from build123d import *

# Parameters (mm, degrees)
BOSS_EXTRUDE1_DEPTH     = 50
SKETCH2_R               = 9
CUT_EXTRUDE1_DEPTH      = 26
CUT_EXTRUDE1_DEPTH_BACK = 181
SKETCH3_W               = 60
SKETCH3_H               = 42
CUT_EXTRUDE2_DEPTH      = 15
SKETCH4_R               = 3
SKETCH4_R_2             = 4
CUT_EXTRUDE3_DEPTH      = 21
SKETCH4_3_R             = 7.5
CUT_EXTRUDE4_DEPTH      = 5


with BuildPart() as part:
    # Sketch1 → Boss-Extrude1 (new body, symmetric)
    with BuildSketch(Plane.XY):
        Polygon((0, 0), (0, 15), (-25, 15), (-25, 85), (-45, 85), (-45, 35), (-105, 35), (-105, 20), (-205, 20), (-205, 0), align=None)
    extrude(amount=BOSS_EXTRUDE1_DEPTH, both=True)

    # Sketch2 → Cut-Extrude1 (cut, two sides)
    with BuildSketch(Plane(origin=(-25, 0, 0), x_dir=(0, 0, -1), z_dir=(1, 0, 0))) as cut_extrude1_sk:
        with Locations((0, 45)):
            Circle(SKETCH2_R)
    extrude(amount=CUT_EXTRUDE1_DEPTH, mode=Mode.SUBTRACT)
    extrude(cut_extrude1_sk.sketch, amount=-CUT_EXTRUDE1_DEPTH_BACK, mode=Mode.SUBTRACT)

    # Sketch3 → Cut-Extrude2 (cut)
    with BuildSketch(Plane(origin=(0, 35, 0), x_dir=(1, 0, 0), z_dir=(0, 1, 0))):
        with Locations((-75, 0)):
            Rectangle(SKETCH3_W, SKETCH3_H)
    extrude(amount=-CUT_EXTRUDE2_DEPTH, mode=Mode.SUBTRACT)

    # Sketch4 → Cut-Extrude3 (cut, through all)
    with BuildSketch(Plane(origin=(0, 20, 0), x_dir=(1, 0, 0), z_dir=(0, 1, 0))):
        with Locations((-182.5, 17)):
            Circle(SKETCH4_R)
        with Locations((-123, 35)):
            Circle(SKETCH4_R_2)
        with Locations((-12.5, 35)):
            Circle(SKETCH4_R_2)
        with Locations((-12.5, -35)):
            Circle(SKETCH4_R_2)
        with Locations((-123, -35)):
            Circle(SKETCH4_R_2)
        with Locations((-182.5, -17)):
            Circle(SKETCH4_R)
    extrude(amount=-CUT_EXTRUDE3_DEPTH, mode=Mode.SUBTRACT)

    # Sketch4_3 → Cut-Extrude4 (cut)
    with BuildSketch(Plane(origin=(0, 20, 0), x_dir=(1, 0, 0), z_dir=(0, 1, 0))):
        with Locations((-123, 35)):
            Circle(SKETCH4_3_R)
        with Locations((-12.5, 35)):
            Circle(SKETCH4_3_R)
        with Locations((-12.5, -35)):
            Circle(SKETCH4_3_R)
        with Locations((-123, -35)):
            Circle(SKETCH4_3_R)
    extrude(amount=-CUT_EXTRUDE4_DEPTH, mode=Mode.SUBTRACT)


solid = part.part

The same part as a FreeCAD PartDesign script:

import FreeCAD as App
import Part
import Sketcher

V = App.Vector


def add_polygon(sketch, points):
    """Adds a closed chain of lines whose ends are joined by coincident constraints."""
    first, n = sketch.GeometryCount, len(points)
    for a, b in zip(points, points[1:] + points[:1]):
        sketch.addGeometry(Part.LineSegment(App.Vector(*a, 0), App.Vector(*b, 0)), False)
    for i in range(n):
        sketch.addConstraint(Sketcher.Constraint("Coincident", first + i, 2, first + (i + 1) % n, 1))

doc = App.newDocument("Part")
body = doc.addObject("PartDesign::Body", "Body")

# Sketch on XY plane
sketch1 = body.newObject("Sketcher::SketchObject", "Sketch")
sketch1.AttachmentSupport = (doc.getObject("XY_Plane"), [""])
sketch1.MapMode = "FlatFace"
add_polygon(sketch1, [(0, 0), (0, 15), (-25, 15), (-25, 85), (-45, 85), (-45, 35), (-105, 35), (-105, 20), (-205, 20), (-205, 0)])  # lines 0-9
sketch1.addConstraint([
    Sketcher.Constraint("Vertical", 0),
    Sketcher.Constraint("Horizontal", 1),
    Sketcher.Constraint("Vertical", 2),
    Sketcher.Constraint("Horizontal", 3),
    Sketcher.Constraint("Vertical", 4),
    Sketcher.Constraint("Horizontal", 5),
    Sketcher.Constraint("Vertical", 6),
    Sketcher.Constraint("Horizontal", 7),
    Sketcher.Constraint("Vertical", 8),
    Sketcher.Constraint("Horizontal", 9),
    Sketcher.Constraint("Coincident", 9, 2, -1, 1),
    Sketcher.Constraint("Equal", 0, 6),
    Sketcher.Constraint("Equal", 3, 8),
    Sketcher.Constraint("DistanceX", 1, 2, 1, 1, 25.0),
    Sketcher.Constraint("DistanceX", 3, 2, 3, 1, 20.0),
    Sketcher.Constraint("DistanceX", 5, 2, 5, 1, 60.0),
    Sketcher.Constraint("DistanceX", 7, 2, 7, 1, 100.0),
    Sketcher.Constraint("DistanceY", 0, 1, 0, 2, 15.0),
    Sketcher.Constraint("DistanceY", 2, 1, 2, 2, 70.0),
])
pad1 = body.newObject("PartDesign::Pad", "Pad")
pad1.Profile = sketch1
pad1.Length = 100
pad1.Midplane = True

# Sketch on YZ plane
sketch2 = body.newObject("Sketcher::SketchObject", "Sketch001")
sketch2.AttachmentSupport = (doc.getObject("YZ_Plane"), [""])
sketch2.MapMode = "FlatFace"
sketch2.AttachmentOffset = App.Placement(V(0, 0, -25), App.Rotation())
sketch2.addGeometry(Part.Circle(V(45, 0, 0), V(0, 0, 1), 9), False)
sketch2.addConstraint([
    Sketcher.Constraint("PointOnObject", 0, 3, -1),
    Sketcher.Constraint("Diameter", 0, 18.0),
    Sketcher.Constraint("DistanceX", -1, 1, 0, 3, 45.0),
])
pocket1 = body.newObject("PartDesign::Pocket", "Pocket")
pocket1.Profile = sketch2
pocket1.Type = "ThroughAll"
pocket1.Midplane = True

# Sketch on XZ plane
sketch3 = body.newObject("Sketcher::SketchObject", "Sketch002")
sketch3.AttachmentSupport = (doc.getObject("XZ_Plane"), [""])
sketch3.MapMode = "FlatFace"
sketch3.AttachmentOffset = App.Placement(V(0, 0, -35), App.Rotation())
add_polygon(sketch3, [(-105, -21), (-105, 21), (-45, 21), (-45, -21)])  # lines 0-3
sketch3.addConstraint([
    Sketcher.Constraint("Vertical", 0),
    Sketcher.Constraint("Horizontal", 1),
    Sketcher.Constraint("Vertical", 2),
    Sketcher.Constraint("Horizontal", 3),
    Sketcher.Constraint("DistanceX", 1, 1, 1, 2, 60.0),
    Sketcher.Constraint("DistanceY", 0, 1, 0, 2, 42.0),
    Sketcher.Constraint("DistanceX", 0, 2, -1, 1, 105.0),
    Sketcher.Constraint("DistanceY", -1, 1, 0, 2, 21.0),
])
pocket2 = body.newObject("PartDesign::Pocket", "Pocket001")
pocket2.Profile = sketch3
pocket2.Length = 15
pocket2.Reversed = True

# Sketch on XZ plane
sketch4 = body.newObject("Sketcher::SketchObject", "Sketch003")
sketch4.AttachmentSupport = (doc.getObject("XZ_Plane"), [""])
sketch4.MapMode = "FlatFace"
sketch4.AttachmentOffset = App.Placement(V(0, 0, -20), App.Rotation())
sketch4.addGeometry([
    Part.Circle(V(-182.5, -17, 0), V(0, 0, 1), 3),  # 0
    Part.Circle(V(-123, -35, 0), V(0, 0, 1), 4),  # 1
    Part.Circle(V(-12.5, -35, 0), V(0, 0, 1), 4),  # 2
    Part.Circle(V(-12.5, 35, 0), V(0, 0, 1), 4),  # 3
    Part.Circle(V(-123, 35, 0), V(0, 0, 1), 4),  # 4
    Part.Circle(V(-182.5, 17, 0), V(0, 0, 1), 3),  # 5
], False)
sketch4.addConstraint([
    Sketcher.Constraint("Equal", 1, 2),
    Sketcher.Constraint("Equal", 2, 3),
    Sketcher.Constraint("Equal", 3, 4),
    Sketcher.Constraint("Equal", 0, 5),
    Sketcher.Constraint("Symmetric", 2, 3, 3, 3, -1),
    Sketcher.Constraint("Symmetric", 1, 3, 4, 3, -1),
    Sketcher.Constraint("Symmetric", 0, 3, 5, 3, -1),
    Sketcher.Constraint("Horizontal", 1, 3, 2, 3),
    Sketcher.Constraint("Diameter", 0, 6.0),
    Sketcher.Constraint("Diameter", 1, 8.0),
    Sketcher.Constraint("DistanceY", 0, 3, -1, 1, 17.0),
    Sketcher.Constraint("DistanceX", 1, 3, -1, 1, 123.0),
    Sketcher.Constraint("DistanceY", 1, 3, -1, 1, 35.0),
    Sketcher.Constraint("DistanceX", 0, 3, 2, 3, 170.0),
    Sketcher.Constraint("DistanceX", 0, 3, -1, 1, 182.5),
])
pocket3 = body.newObject("PartDesign::Pocket", "Pocket002")
pocket3.Profile = sketch4
pocket3.Type = "ThroughAll"
pocket3.Reversed = True

# Sketch on XZ plane
sketch5 = body.newObject("Sketcher::SketchObject", "Sketch004")
sketch5.AttachmentSupport = (doc.getObject("XZ_Plane"), [""])
sketch5.MapMode = "FlatFace"
sketch5.AttachmentOffset = App.Placement(V(0, 0, -20), App.Rotation())
sketch5.addGeometry([
    Part.Circle(V(-123, -35, 0), V(0, 0, 1), 8),
    Part.Circle(V(-12, -35, 0), V(0, 0, 1), 8),
    Part.Circle(V(-12, 35, 0), V(0, 0, 1), 8),
    Part.Circle(V(-123, 35, 0), V(0, 0, 1), 8),
], False)
sketch5.addConstraint([
    Sketcher.Constraint("Equal", 0, 1),
    Sketcher.Constraint("Equal", 1, 2),
    Sketcher.Constraint("Equal", 2, 3),
    Sketcher.Constraint("Symmetric", 1, 3, 2, 3, -1),
    Sketcher.Constraint("Symmetric", 0, 3, 3, 3, -1),
    Sketcher.Constraint("Horizontal", 0, 3, 1, 3),
    Sketcher.Constraint("Diameter", 0, 15.0),
    Sketcher.Constraint("DistanceX", 0, 3, -1, 1, 123.0),
    Sketcher.Constraint("DistanceY", 0, 3, -1, 1, 35.0),
    Sketcher.Constraint("DistanceX", 1, 3, -1, 1, 12.5),
])
pocket4 = body.newObject("PartDesign::Pocket", "Pocket003")
pocket4.Profile = sketch5
pocket4.Length = 5
pocket4.Reversed = True

doc.recompute()
